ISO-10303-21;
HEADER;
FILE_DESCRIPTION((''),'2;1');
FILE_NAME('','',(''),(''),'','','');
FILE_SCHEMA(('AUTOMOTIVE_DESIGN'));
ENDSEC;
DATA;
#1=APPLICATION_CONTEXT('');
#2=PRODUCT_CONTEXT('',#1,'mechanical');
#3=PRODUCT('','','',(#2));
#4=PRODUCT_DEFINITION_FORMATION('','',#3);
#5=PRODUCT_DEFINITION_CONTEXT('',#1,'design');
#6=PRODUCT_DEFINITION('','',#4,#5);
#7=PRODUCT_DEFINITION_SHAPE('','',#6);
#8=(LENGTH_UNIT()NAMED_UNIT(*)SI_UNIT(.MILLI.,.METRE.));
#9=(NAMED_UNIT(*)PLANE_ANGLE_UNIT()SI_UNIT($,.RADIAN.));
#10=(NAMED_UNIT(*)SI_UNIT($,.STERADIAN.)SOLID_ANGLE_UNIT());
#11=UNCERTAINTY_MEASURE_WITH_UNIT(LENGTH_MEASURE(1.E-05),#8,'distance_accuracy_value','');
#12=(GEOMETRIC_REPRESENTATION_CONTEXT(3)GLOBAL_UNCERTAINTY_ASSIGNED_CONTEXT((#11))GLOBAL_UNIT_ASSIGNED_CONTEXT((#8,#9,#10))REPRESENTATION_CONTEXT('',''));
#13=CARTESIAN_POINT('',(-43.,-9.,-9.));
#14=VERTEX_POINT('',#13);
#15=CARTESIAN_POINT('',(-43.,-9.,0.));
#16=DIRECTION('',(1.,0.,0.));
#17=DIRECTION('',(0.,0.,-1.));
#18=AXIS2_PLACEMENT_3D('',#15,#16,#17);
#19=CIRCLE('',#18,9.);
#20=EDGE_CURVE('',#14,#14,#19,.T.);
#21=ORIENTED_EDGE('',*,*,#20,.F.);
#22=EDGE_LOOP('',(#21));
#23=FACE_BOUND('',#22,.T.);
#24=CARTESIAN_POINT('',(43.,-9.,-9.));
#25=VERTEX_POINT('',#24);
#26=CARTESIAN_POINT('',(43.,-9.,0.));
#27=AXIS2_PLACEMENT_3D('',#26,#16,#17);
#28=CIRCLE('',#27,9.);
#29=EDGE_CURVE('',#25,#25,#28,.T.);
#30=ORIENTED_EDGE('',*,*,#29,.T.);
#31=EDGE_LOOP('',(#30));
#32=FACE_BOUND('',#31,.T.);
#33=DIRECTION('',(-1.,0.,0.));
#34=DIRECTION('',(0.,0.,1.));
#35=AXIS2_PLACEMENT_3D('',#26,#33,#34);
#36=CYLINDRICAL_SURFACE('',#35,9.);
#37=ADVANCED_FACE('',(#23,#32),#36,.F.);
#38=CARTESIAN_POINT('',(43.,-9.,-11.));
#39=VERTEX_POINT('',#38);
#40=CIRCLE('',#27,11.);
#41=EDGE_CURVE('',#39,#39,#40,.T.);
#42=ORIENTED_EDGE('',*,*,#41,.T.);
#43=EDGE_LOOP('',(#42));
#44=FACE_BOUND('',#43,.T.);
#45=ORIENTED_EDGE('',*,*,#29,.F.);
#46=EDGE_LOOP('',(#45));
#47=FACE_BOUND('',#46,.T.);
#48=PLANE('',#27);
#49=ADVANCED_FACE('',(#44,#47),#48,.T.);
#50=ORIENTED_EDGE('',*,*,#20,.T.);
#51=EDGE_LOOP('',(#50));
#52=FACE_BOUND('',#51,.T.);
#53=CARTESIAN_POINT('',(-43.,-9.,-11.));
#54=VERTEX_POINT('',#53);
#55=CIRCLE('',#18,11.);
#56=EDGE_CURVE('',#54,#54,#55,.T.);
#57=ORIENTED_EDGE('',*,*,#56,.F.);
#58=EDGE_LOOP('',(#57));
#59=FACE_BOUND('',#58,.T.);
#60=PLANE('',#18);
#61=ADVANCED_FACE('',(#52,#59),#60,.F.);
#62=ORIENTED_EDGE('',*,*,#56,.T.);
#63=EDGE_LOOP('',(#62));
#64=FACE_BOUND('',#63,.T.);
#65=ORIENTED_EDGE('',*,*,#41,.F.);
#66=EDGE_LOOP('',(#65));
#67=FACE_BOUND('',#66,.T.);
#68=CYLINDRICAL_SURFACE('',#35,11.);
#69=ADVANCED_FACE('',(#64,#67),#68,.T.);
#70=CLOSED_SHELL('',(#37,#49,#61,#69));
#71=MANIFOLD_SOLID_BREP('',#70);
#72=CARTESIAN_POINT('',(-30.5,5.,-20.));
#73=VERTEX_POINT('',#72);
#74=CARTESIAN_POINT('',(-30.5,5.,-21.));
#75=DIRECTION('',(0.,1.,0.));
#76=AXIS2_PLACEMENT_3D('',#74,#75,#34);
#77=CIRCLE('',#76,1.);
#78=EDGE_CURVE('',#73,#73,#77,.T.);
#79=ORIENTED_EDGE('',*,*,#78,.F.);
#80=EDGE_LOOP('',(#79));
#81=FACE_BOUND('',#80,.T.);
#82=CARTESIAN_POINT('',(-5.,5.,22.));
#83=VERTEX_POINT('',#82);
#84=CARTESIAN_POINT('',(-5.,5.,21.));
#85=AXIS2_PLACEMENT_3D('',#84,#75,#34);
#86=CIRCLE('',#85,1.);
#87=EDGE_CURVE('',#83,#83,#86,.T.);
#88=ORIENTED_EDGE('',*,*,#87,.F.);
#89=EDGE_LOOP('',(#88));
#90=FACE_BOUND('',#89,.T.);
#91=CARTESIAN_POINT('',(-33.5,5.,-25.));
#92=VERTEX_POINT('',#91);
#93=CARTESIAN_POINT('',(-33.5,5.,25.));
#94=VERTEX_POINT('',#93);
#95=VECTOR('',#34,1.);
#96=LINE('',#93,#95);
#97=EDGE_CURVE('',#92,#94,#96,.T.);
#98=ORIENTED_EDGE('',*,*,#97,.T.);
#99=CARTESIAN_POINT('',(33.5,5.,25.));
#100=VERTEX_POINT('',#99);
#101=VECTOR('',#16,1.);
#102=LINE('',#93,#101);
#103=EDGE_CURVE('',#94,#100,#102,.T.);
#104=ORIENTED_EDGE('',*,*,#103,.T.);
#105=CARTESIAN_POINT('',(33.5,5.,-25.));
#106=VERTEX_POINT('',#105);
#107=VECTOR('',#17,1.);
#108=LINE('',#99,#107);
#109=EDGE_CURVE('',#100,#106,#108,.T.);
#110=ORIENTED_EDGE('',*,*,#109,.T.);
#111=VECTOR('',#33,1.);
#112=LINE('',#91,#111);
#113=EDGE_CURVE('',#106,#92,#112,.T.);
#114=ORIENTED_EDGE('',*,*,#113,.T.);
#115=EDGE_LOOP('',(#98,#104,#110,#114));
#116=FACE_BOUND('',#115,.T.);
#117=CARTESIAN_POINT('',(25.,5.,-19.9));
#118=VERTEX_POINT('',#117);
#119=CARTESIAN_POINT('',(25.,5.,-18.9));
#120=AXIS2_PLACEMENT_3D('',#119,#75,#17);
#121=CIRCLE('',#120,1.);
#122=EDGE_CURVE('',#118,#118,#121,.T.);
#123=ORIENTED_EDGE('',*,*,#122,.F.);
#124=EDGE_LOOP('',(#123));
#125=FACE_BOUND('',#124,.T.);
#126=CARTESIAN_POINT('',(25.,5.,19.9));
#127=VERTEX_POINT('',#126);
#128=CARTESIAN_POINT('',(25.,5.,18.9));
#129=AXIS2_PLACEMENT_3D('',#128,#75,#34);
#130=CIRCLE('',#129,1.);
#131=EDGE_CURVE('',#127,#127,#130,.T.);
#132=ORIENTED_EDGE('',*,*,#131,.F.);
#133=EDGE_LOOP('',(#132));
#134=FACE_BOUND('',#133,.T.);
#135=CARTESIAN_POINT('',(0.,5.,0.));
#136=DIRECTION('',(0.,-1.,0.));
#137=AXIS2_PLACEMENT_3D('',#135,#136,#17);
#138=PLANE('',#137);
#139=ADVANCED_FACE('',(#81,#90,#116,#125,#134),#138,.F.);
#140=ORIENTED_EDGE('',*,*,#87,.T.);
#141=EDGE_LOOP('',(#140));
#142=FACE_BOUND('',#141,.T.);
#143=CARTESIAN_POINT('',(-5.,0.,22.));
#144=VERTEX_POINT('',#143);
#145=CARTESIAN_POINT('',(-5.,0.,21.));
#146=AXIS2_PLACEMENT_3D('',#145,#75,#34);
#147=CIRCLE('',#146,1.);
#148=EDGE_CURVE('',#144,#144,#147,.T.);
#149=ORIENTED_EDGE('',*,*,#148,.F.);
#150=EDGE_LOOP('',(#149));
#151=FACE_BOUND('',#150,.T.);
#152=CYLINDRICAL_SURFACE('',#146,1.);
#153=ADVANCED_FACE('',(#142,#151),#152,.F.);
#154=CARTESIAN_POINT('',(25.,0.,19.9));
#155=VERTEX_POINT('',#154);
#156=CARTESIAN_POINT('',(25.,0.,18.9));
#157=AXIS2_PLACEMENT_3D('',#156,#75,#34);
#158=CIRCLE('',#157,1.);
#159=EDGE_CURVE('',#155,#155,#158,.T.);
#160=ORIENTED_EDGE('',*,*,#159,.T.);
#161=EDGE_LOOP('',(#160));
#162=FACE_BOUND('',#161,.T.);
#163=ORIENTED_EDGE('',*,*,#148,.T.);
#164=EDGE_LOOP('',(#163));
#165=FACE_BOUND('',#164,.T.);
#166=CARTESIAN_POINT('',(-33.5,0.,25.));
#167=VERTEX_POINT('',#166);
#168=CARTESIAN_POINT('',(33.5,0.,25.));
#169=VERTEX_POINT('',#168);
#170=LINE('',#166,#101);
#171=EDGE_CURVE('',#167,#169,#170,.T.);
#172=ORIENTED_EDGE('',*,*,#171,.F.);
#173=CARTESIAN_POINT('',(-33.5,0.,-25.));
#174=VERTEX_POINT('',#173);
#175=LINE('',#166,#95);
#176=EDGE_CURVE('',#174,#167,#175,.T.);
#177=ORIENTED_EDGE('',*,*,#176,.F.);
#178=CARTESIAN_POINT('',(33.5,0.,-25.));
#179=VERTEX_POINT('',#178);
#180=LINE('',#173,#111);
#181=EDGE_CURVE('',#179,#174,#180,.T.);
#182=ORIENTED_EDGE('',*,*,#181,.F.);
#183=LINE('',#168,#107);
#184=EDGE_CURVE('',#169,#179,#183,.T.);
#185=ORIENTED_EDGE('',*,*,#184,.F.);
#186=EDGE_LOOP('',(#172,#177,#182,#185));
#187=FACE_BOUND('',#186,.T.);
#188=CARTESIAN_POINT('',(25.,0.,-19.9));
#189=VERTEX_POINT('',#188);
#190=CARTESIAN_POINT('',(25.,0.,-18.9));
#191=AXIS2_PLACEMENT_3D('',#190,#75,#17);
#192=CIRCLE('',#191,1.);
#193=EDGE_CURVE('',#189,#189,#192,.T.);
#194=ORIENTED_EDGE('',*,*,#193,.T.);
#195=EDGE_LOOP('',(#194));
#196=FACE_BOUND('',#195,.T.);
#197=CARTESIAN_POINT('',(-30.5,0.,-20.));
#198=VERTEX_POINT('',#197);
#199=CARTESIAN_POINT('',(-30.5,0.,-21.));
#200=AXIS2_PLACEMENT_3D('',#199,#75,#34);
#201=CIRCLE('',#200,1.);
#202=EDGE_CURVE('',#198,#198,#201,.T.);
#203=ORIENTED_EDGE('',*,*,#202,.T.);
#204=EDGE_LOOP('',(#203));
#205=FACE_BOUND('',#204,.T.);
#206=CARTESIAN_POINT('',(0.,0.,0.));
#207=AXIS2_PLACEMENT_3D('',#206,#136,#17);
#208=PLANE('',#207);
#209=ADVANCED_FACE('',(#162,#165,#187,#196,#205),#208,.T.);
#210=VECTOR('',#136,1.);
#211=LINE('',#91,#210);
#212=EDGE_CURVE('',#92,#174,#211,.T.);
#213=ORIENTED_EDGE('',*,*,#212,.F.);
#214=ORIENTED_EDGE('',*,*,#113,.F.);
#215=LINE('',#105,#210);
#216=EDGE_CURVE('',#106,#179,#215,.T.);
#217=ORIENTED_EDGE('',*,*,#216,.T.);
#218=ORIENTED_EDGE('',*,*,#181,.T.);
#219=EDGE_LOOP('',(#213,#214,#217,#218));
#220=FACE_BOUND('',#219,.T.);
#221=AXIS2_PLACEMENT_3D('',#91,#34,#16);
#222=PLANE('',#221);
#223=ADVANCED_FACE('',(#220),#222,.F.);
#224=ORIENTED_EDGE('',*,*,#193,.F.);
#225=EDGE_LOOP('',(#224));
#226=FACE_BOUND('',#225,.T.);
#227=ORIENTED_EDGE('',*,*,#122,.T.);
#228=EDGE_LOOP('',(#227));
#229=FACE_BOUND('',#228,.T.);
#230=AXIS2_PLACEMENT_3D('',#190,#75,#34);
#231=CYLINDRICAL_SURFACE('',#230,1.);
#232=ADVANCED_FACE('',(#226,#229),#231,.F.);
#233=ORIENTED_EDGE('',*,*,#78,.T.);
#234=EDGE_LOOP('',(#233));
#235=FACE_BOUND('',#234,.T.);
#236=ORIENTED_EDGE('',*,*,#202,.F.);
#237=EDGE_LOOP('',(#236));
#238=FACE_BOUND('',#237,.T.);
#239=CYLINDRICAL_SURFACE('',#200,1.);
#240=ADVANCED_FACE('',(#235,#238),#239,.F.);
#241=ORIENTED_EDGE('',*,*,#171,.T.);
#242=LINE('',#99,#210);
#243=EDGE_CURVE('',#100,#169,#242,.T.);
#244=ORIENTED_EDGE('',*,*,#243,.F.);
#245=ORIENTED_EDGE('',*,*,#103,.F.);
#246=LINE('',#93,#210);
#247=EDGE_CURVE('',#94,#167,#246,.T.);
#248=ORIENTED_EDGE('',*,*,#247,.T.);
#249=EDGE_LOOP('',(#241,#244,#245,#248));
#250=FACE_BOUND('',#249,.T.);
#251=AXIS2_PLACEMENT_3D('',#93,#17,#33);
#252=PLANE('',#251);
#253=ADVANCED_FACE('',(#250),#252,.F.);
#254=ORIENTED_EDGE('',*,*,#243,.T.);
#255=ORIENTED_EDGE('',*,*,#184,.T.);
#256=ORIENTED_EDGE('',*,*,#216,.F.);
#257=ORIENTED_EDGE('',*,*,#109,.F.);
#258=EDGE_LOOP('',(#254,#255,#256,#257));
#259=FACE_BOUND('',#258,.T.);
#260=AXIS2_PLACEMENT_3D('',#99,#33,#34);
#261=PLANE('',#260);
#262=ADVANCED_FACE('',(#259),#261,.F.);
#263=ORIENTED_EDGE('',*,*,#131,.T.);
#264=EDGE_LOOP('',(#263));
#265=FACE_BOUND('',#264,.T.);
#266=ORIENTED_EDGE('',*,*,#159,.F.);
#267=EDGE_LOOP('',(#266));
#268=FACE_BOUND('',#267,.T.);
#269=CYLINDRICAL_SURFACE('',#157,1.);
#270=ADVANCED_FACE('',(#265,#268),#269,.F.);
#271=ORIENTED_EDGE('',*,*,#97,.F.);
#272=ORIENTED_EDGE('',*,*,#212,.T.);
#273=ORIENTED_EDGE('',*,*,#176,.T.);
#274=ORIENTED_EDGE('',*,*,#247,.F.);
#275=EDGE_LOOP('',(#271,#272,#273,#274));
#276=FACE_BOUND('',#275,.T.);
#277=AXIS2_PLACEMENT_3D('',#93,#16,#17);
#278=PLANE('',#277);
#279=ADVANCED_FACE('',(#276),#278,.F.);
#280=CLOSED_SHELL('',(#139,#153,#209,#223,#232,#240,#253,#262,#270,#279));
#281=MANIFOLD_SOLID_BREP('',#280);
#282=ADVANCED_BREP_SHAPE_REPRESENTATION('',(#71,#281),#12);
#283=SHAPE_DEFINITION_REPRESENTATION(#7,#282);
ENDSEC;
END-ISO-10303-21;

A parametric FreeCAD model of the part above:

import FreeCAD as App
import Part
import Sketcher

V = App.Vector

doc = App.newDocument("Part")
body = doc.addObject("PartDesign::Body", "Body")

# Sketch on XZ plane
sketch1 = body.newObject("Sketcher::SketchObject", "Sketch")
sketch1.AttachmentSupport = (doc.getObject("XZ_Plane"), [""])
sketch1.MapMode = "FlatFace"
sketch1.addGeometry(Part.LineSegment(V(-34, -25, 0), V(-34, 25, 0)), False)
sketch1.addGeometry(Part.LineSegment(V(-34, 25, 0), V(34, 25, 0)), False)
sketch1.addGeometry(Part.LineSegment(V(34, 25, 0), V(34, -25, 0)), False)
sketch1.addGeometry(Part.LineSegment(V(34, -25, 0), V(-34, -25, 0)), False)
sketch1.addConstraint(Sketcher.Constraint("Coincident", 0, 2, 1, 1))
sketch1.addConstraint(Sketcher.Constraint("Coincident", 1, 2, 2, 1))
sketch1.addConstraint(Sketcher.Constraint("Coincident", 2, 2, 3, 1))
sketch1.addConstraint(Sketcher.Constraint("Coincident", 3, 2, 0, 1))
sketch1.addConstraint(Sketcher.Constraint("Vertical", 0))
sketch1.addConstraint(Sketcher.Constraint("Horizontal", 1))
sketch1.addConstraint(Sketcher.Constraint("Vertical", 2))
sketch1.addConstraint(Sketcher.Constraint("Horizontal", 3))
sketch1.addConstraint(Sketcher.Constraint("Symmetric", 0, 2, 2, 2, -1, 1))
sketch1.addConstraint(Sketcher.Constraint("DistanceX", 1, 1, 1, 2, 67.0))
sketch1.addConstraint(Sketcher.Constraint("DistanceY", 0, 1, 0, 2, 50.0))
pad1 = body.newObject("PartDesign::Pad", "Pad")
pad1.Profile = sketch1
pad1.Length = 5
pad1.Reversed = True

# Sketch on XZ plane
sketch2 = body.newObject("Sketcher::SketchObject", "Sketch001")
sketch2.AttachmentSupport = (doc.getObject("XZ_Plane"), [""])
sketch2.MapMode = "FlatFace"
sketch2.AttachmentOffset = App.Placement(V(0, 0, -5), App.Rotation())
sketch2.addGeometry(Part.Circle(V(-5, 21, 0), V(0, 0, 1), 1), False)
sketch2.addGeometry(Part.Circle(V(25, 18.9, 0), V(0, 0, 1), 1), False)
sketch2.addGeometry(Part.Circle(V(25, -18.9, 0), V(0, 0, 1), 1), False)
sketch2.addGeometry(Part.Circle(V(-30.5, -21, 0), V(0, 0, 1), 1), False)
sketch2.addConstraint(Sketcher.Constraint("Equal", 0, 1))
sketch2.addConstraint(Sketcher.Constraint("Equal", 1, 2))
sketch2.addConstraint(Sketcher.Constraint("Equal", 2, 3))
sketch2.addConstraint(Sketcher.Constraint("Symmetric", 1, 3, 2, 3, -1))
sketch2.addConstraint(Sketcher.Constraint("Diameter", 0, 2.0))
sketch2.addConstraint(Sketcher.Constraint("DistanceX", 0, 3, -1, 1, 5.0))
sketch2.addConstraint(Sketcher.Constraint("DistanceY", -1, 1, 0, 3, 21.0))
sketch2.addConstraint(Sketcher.Constraint("DistanceX", -1, 1, 1, 3, 25.0))
sketch2.addConstraint(Sketcher.Constraint("DistanceY", 3, 3, -1, 1, 21.0))
sketch2.addConstraint(Sketcher.Constraint("DistanceY", -1, 1, 1, 3, 18.9))
sketch2.addConstraint(Sketcher.Constraint("DistanceX", 3, 3, -1, 1, 30.5))
pocket1 = body.newObject("PartDesign::Pocket", "Pocket")
pocket1.Profile = sketch2
pocket1.Type = "ThroughAll"
pocket1.Reversed = True
body2 = doc.addObject("PartDesign::Body", "Body001")

# Sketch on YZ plane
sketch3 = body2.newObject("Sketcher::SketchObject", "Sketch002")
sketch3.AttachmentSupport = (doc.getObject("YZ_Plane001"), [""])
sketch3.MapMode = "FlatFace"
sketch3.addGeometry(Part.Circle(V(-9, 0, 0), V(0, 0, 1), 11), False)
sketch3.addGeometry(Part.Circle(V(-9, 0, 0), V(0, 0, 1), 9), False)
sketch3.addConstraint(Sketcher.Constraint("Coincident", 1, 3, 0, 3))
sketch3.addConstraint(Sketcher.Constraint("PointOnObject", 0, 3, -1))
sketch3.addConstraint(Sketcher.Constraint("Diameter", 0, 22.0))
sketch3.addConstraint(Sketcher.Constraint("Diameter", 1, 18.0))
sketch3.addConstraint(Sketcher.Constraint("DistanceX", 0, 3, -1, 1, 9.0))
pad2 = body2.newObject("PartDesign::Pad", "Pad001")
pad2.Profile = sketch3
pad2.Length = 86
pad2.Midplane = True

doc.recompute()
